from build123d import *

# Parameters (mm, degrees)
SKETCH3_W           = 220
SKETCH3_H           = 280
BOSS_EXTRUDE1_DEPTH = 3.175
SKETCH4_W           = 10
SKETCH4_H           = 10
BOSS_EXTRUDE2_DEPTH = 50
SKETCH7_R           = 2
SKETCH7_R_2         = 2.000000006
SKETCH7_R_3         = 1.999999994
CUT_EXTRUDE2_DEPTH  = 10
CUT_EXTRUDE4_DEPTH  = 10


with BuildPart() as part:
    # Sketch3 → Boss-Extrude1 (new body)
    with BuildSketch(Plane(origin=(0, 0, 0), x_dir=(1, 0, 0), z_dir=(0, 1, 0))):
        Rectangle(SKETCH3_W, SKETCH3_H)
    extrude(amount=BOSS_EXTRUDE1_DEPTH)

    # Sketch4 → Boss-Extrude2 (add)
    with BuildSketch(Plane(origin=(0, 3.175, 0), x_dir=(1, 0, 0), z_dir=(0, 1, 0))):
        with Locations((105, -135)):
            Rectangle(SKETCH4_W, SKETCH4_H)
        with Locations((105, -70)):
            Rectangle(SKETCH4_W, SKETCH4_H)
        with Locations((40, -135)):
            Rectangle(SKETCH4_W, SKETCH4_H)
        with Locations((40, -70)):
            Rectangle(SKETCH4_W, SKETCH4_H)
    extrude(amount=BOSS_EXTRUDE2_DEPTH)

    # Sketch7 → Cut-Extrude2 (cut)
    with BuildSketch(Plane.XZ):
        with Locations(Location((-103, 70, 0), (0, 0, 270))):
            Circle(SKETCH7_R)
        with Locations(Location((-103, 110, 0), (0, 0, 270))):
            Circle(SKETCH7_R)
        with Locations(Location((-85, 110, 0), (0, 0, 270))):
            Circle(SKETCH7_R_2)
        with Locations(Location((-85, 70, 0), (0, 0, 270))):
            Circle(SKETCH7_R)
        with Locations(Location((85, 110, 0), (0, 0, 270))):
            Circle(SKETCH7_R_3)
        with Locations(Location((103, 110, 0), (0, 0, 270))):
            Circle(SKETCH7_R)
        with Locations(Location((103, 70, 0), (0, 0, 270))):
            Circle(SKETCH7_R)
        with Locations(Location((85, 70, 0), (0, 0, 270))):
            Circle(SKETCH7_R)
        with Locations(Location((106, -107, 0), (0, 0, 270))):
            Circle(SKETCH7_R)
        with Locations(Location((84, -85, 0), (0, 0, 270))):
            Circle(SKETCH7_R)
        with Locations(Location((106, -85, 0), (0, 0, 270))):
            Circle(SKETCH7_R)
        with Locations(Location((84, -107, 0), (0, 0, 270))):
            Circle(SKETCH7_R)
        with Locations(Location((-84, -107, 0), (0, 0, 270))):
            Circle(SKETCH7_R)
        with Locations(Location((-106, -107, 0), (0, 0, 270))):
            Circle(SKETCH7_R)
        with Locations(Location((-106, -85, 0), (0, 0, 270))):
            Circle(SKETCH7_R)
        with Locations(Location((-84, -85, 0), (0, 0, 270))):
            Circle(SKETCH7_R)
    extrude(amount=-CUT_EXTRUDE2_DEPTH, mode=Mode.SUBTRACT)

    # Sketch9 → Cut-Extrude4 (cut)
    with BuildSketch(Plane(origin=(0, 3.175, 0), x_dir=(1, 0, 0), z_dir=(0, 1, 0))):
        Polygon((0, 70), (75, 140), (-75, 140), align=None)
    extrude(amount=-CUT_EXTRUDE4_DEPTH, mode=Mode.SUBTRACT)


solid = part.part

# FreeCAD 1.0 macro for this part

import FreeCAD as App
import Part
import Sketcher

V = App.Vector
Q = App.Units.Quantity

doc = App.newDocument("Part")
params = doc.addObject("Spreadsheet::Sheet", "Params")
for row, (alias, value) in enumerate([
    ("sketch1_width", "220 mm"),
    ("sketch1_height", "280 mm"),
    ("pad1_length", "3.175 mm"),
    ("sketch2_width", "10 mm"),
    ("pad2_length", "50 mm"),
    ("sketch3_diameter", "4 mm"),
    ("pocket1_length", "10 mm"),
    ("sketch4_width", "150 mm"),
    ("pocket2_length", "10 mm"),
], start=1):
    params.set(f"A{row}", alias)
    params.set(f"B{row}", "=" + value)
    params.setAlias(f"B{row}", alias)

body = doc.addObject("PartDesign::Body", "Body")

# Sketch on XZ plane
sketch1 = doc.addObject("Sketcher::SketchObject", "Sketch")
body.addObject(sketch1)
sketch1.AttachmentSupport = (doc.XZ_Plane, [""])
sketch1.MapMode = "FlatFace"
sketch1.addGeometry([
    Part.LineSegment(V(-110, -140, 0), V(-110, 140, 0)),
    Part.LineSegment(V(-110, 140, 0), V(110, 140, 0)),
    Part.LineSegment(V(110, 140, 0), V(110, -140, 0)),
    Part.LineSegment(V(110, -140, 0), V(-110, -140, 0)),
], False)
sketch1.addConstraint([
    Sketcher.Constraint("Coincident", 0, 2, 1, 1),
    Sketcher.Constraint("Coincident", 1, 2, 2, 1),
    Sketcher.Constraint("Coincident", 2, 2, 3, 1),
    Sketcher.Constraint("Coincident", 3, 2, 0, 1),
    Sketcher.Constraint("Vertical", 0),
    Sketcher.Constraint("Horizontal", 1),
    Sketcher.Constraint("Vertical", 2),
    Sketcher.Constraint("Horizontal", 3),
    Sketcher.Constraint("Symmetric", 0, 2, 2, 2, -1, 1),
    Sketcher.Constraint("DistanceX", 1, 1, 1, 2, Q("220 mm")),
    Sketcher.Constraint("DistanceY", 0, 1, 0, 2, Q("280 mm")),
])
sketch1.setExpression("Constraints[9]", "Params.sketch1_width")
sketch1.setExpression("Constraints[10]", "Params.sketch1_height")
pad1 = doc.addObject("PartDesign::Pad", "Pad")
body.addObject(pad1)
pad1.Profile = sketch1
pad1.setExpression("Length", "Params.pad1_length")
pad1.Reversed = True

# Sketch on XZ plane
sketch2 = doc.addObject("Sketcher::SketchObject", "Sketch001")
body.addObject(sketch2)
sketch2.AttachmentSupport = (doc.XZ_Plane, [""])
sketch2.MapMode = "FlatFace"
sketch2.AttachmentOffset = App.Placement(V(0, 0, -3.175), App.Rotation())
sketch2.addGeometry([
    Part.LineSegment(V(100, 130, 0), V(100, 140, 0)),  # 0
    Part.LineSegment(V(100, 140, 0), V(110, 140, 0)),  # 1
    Part.LineSegment(V(110, 140, 0), V(110, 130, 0)),  # 2
    Part.LineSegment(V(110, 130, 0), V(100, 130, 0)),  # 3
    Part.LineSegment(V(100, 65, 0), V(100, 75, 0)),  # 4
    Part.LineSegment(V(100, 75, 0), V(110, 75, 0)),  # 5
    Part.LineSegment(V(110, 75, 0), V(110, 65, 0)),  # 6
    Part.LineSegment(V(110, 65, 0), V(100, 65, 0)),  # 7
    Part.LineSegment(V(35, 130, 0), V(35, 140, 0)),  # 8
    Part.LineSegment(V(35, 140, 0), V(45, 140, 0)),  # 9
    Part.LineSegment(V(45, 140, 0), V(45, 130, 0)),  # 10
    Part.LineSegment(V(45, 130, 0), V(35, 130, 0)),  # 11
    Part.LineSegment(V(35, 65, 0), V(35, 75, 0)),  # 12
    Part.LineSegment(V(35, 75, 0), V(45, 75, 0)),  # 13
    Part.LineSegment(V(45, 75, 0), V(45, 65, 0)),  # 14
    Part.LineSegment(V(45, 65, 0), V(35, 65, 0)),  # 15
], False)
sketch2.addConstraint([
    Sketcher.Constraint("Coincident", 0, 2, 1, 1),
    Sketcher.Constraint("Coincident", 1, 2, 2, 1),
    Sketcher.Constraint("Coincident", 2, 2, 3, 1),
    Sketcher.Constraint("Coincident", 3, 2, 0, 1),
    Sketcher.Constraint("Coincident", 4, 2, 5, 1),
    Sketcher.Constraint("Coincident", 5, 2, 6, 1),
    Sketcher.Constraint("Coincident", 6, 2, 7, 1),
    Sketcher.Constraint("Coincident", 7, 2, 4, 1),
    Sketcher.Constraint("Coincident", 8, 2, 9, 1),
    Sketcher.Constraint("Coincident", 9, 2, 10, 1),
    Sketcher.Constraint("Coincident", 10, 2, 11, 1),
    Sketcher.Constraint("Coincident", 11, 2, 8, 1),
    Sketcher.Constraint("Coincident", 12, 2, 13, 1),
    Sketcher.Constraint("Coincident", 13, 2, 14, 1),
    Sketcher.Constraint("Coincident", 14, 2, 15, 1),
    Sketcher.Constraint("Coincident", 15, 2, 12, 1),
    Sketcher.Constraint("Vertical", 0),
    Sketcher.Constraint("Horizontal", 1),
    Sketcher.Constraint("Vertical", 2),
    Sketcher.Constraint("Horizontal", 3),
    Sketcher.Constraint("Vertical", 4),
    Sketcher.Constraint("Horizontal", 5),
    Sketcher.Constraint("Vertical", 6),
    Sketcher.Constraint("Horizontal", 7),
    Sketcher.Constraint("Vertical", 8),
    Sketcher.Constraint("Horizontal", 9),
    Sketcher.Constraint("Vertical", 10),
    Sketcher.Constraint("Horizontal", 11),
    Sketcher.Constraint("Vertical", 12),
    Sketcher.Constraint("Horizontal", 13),
    Sketcher.Constraint("Vertical", 14),
    Sketcher.Constraint("Horizontal", 15),
    Sketcher.Constraint("Horizontal", 1, 2, 8, 2),
    Sketcher.Constraint("Horizontal", 3, 2, 10, 2),
    Sketcher.Constraint("Horizontal", 5, 2, 12, 2),
    Sketcher.Constraint("Horizontal", 7, 2, 14, 2),
    Sketcher.Constraint("Vertical", 3, 2, 4, 2),
    Sketcher.Constraint("Vertical", 2, 2, 5, 2),
    Sketcher.Constraint("Vertical", 11, 2, 12, 2),
    Sketcher.Constraint("Vertical", 10, 2, 13, 2),
    Sketcher.Constraint("Equal", 7, 9),
    Sketcher.Constraint("Equal", 15, 0),
    Sketcher.Constraint("Equal", 2, 4),
    Sketcher.Constraint("DistanceX", 1, 1, 1, 2, Q("10 mm")),
    Sketcher.Constraint("DistanceX", -1, 1, 0, 2, Q("100 mm")),
    Sketcher.Constraint("DistanceY", -1, 1, 0, 2, Q("140 mm")),
    Sketcher.Constraint("DistanceY", -1, 1, 4, 2, Q("75 mm")),
    Sketcher.Constraint("DistanceX", -1, 1, 8, 2, Q("35 mm")),
])
sketch2.setExpression("Constraints[43]", "Params.sketch2_width")
pad2 = doc.addObject("PartDesign::Pad", "Pad001")
body.addObject(pad2)
pad2.Profile = sketch2
pad2.setExpression("Length", "Params.pad2_length")
pad2.Reversed = True

# Sketch on XZ plane
sketch3 = doc.addObject("Sketcher::SketchObject", "Sketch002")
body.addObject(sketch3)
sketch3.AttachmentSupport = (doc.XZ_Plane, [""])
sketch3.MapMode = "FlatFace"
sketch3.addGeometry([
    Part.Circle(V(-103, 70, 0), V(0, 0, 1), 2),  # 0
    Part.Circle(V(-103, 110, 0), V(0, 0, 1), 2),  # 1
    Part.Circle(V(-85, 110, 0), V(0, 0, 1), 2),  # 2
    Part.Circle(V(-85, 70, 0), V(0, 0, 1), 2),  # 3
    Part.Circle(V(85, 110, 0), V(0, 0, 1), 2),  # 4
    Part.Circle(V(103, 110, 0), V(0, 0, 1), 2),  # 5
    Part.Circle(V(103, 70, 0), V(0, 0, 1), 2),  # 6
    Part.Circle(V(85, 70, 0), V(0, 0, 1), 2),  # 7
    Part.Circle(V(106, -107, 0), V(0, 0, 1), 2),  # 8
    Part.Circle(V(84, -85, 0), V(0, 0, 1), 2),  # 9
    Part.Circle(V(106, -85, 0), V(0, 0, 1), 2),  # 10
    Part.Circle(V(84, -107, 0), V(0, 0, 1), 2),  # 11
    Part.Circle(V(-84, -107, 0), V(0, 0, 1), 2),  # 12
    Part.Circle(V(-106, -107, 0), V(0, 0, 1), 2),  # 13
    Part.Circle(V(-106, -85, 0), V(0, 0, 1), 2),  # 14
    Part.Circle(V(-84, -85, 0), V(0, 0, 1), 2),  # 15
], False)
sketch3.addConstraint([
    Sketcher.Constraint("Equal", 0, 1),
    Sketcher.Constraint("Equal", 1, 2),
    Sketcher.Constraint("Equal", 2, 3),
    Sketcher.Constraint("Equal", 3, 4),
    Sketcher.Constraint("Equal", 4, 5),
    Sketcher.Constraint("Equal", 5, 6),
    Sketcher.Constraint("Equal", 6, 7),
    Sketcher.Constraint("Equal", 7, 8),
    Sketcher.Constraint("Equal", 8, 9),
    Sketcher.Constraint("Equal", 9, 10),
    Sketcher.Constraint("Equal", 10, 11),
    Sketcher.Constraint("Equal", 11, 12),
    Sketcher.Constraint("Equal", 12, 13),
    Sketcher.Constraint("Equal", 13, 14),
    Sketcher.Constraint("Equal", 14, 15),
    Sketcher.Constraint("Symmetric", 2, 3, 4, 3, -2),
    Sketcher.Constraint("Symmetric", 1, 3, 5, 3, -2),
    Sketcher.Constraint("Symmetric", 0, 3, 6, 3, -2),
    Sketcher.Constraint("Symmetric", 3, 3, 7, 3, -2),
    Sketcher.Constraint("Symmetric", 11, 3, 12, 3, -2),
    Sketcher.Constraint("Symmetric", 8, 3, 13, 3, -2),
    Sketcher.Constraint("Symmetric", 10, 3, 14, 3, -2),
    Sketcher.Constraint("Symmetric", 9, 3, 15, 3, -2),
    Sketcher.Constraint("Horizontal", 1, 3, 2, 3),
    Sketcher.Constraint("Horizontal", 0, 3, 3, 3),
    Sketcher.Constraint("Horizontal", 9, 3, 10, 3),
    Sketcher.Constraint("Horizontal", 8, 3, 11, 3),
    Sketcher.Constraint("Vertical", 0, 3, 1, 3),
    Sketcher.Constraint("Vertical", 2, 3, 3, 3),
    Sketcher.Constraint("Vertical", 8, 3, 10, 3),
    Sketcher.Constraint("Vertical", 9, 3, 11, 3),
    Sketcher.Constraint("Diameter", 0, Q("4 mm")),
    Sketcher.Constraint("DistanceX", 0, 3, -1, 1, Q("103 mm")),
    Sketcher.Constraint("DistanceY", -1, 1, 0, 3, Q("70 mm")),
    Sketcher.Constraint("DistanceY", -1, 1, 1, 3, Q("110 mm")),
    Sketcher.Constraint("DistanceX", 2, 3, -1, 1, Q("85 mm")),
    Sketcher.Constraint("DistanceX", -1, 1, 8, 3, Q("106 mm")),
    Sketcher.Constraint("DistanceY", 8, 3, -1, 1, Q("107 mm")),
    Sketcher.Constraint("DistanceX", -1, 1, 9, 3, Q("84 mm")),
    Sketcher.Constraint("DistanceY", 9, 3, -1, 1, Q("85 mm")),
])
sketch3.setExpression("Constraints[31]", "Params.sketch3_diameter")
pocket1 = doc.addObject("PartDesign::Pocket", "Pocket")
body.addObject(pocket1)
pocket1.Profile = sketch3
pocket1.setExpression("Length", "Params.pocket1_length")

# Sketch on XZ plane
sketch4 = doc.addObject("Sketcher::SketchObject", "Sketch003")
body.addObject(sketch4)
sketch4.AttachmentSupport = (doc.XZ_Plane, [""])
sketch4.MapMode = "FlatFace"
sketch4.AttachmentOffset = App.Placement(V(0, 0, -3.175), App.Rotation())
sketch4.addGeometry([
    Part.LineSegment(V(0, -70, 0), V(75, -140, 0)),
    Part.LineSegment(V(75, -140, 0), V(-75, -140, 0)),
    Part.LineSegment(V(-75, -140, 0), V(0, -70, 0)),
], False)
sketch4.addConstraint([
    Sketcher.Constraint("Coincident", 0, 2, 1, 1),
    Sketcher.Constraint("Coincident", 1, 2, 2, 1),
    Sketcher.Constraint("Coincident", 2, 2, 0, 1),
    Sketcher.Constraint("Horizontal", 1),
    Sketcher.Constraint("PointOnObject", 2, 2, -2),
    Sketcher.Constraint("Equal", 0, 2),
    Sketcher.Constraint("DistanceX", 1, 2, 1, 1, Q("150 mm")),
    Sketcher.Constraint("DistanceY", 0, 2, -1, 1, Q("140 mm")),
    Sketcher.Constraint("DistanceY", 2, 2, -1, 1, Q("70 mm")),
])
sketch4.setExpression("Constraints[6]", "Params.sketch4_width")
pocket2 = doc.addObject("PartDesign::Pocket", "Pocket001")
body.addObject(pocket2)
pocket2.Profile = sketch4
pocket2.setExpression("Length", "Params.pocket2_length")
pocket2.Reversed = True

doc.recompute()
